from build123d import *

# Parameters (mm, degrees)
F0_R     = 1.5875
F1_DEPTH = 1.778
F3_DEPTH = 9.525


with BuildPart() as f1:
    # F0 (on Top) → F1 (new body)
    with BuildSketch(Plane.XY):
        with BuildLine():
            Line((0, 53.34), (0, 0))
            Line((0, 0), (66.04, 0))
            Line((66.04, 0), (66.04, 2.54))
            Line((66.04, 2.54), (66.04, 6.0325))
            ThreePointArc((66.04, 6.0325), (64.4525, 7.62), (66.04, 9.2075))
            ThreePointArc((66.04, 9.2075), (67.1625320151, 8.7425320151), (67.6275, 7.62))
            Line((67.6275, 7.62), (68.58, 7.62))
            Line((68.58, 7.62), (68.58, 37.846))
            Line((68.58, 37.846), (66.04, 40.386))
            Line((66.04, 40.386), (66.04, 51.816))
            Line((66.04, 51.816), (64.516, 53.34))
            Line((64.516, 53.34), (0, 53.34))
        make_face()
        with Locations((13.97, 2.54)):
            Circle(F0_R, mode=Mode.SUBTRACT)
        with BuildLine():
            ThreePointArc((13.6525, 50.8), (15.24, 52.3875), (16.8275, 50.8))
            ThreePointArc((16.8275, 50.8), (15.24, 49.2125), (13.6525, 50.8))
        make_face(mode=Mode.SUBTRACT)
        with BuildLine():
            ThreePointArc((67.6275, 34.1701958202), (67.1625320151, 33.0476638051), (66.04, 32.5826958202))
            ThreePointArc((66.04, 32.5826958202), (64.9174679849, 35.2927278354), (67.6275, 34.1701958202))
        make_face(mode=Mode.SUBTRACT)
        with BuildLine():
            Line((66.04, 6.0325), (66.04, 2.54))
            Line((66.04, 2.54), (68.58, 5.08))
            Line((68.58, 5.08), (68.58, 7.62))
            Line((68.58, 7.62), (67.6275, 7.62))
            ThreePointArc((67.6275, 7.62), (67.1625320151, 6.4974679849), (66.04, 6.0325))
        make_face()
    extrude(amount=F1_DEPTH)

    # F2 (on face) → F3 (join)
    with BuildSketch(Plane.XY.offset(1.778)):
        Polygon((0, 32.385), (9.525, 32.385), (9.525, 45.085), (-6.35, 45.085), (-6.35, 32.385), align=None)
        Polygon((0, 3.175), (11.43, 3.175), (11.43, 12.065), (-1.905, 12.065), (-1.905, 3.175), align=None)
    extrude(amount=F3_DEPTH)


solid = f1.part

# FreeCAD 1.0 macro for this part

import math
import FreeCAD as App
import Part
import Sketcher
Q = App.Units.Quantity

doc = App.newDocument("Part")
body = doc.addObject("PartDesign::Body", "Body")

# Sketch on XY plane
sketch1 = doc.addObject("Sketcher::SketchObject", "Sketch")
body.addObject(sketch1)
sketch1.AttachmentSupport = (doc.XY_Plane, [""])
sketch1.MapMode = "FlatFace"
sketch1.addGeometry([
    Part.LineSegment(App.Vector(0, 53.3, 0), App.Vector(0, 0, 0)),  # 0
    Part.LineSegment(App.Vector(0, 0, 0), App.Vector(66, 0, 0)),  # 1
    Part.LineSegment(App.Vector(66, 0, 0), App.Vector(66, 2.5, 0)),  # 2
    Part.LineSegment(App.Vector(66, 2.5, 0), App.Vector(68.6, 5.1, 0)),  # 3
    Part.LineSegment(App.Vector(68.6, 5.1, 0), App.Vector(68.6, 37.8, 0)),  # 4
    Part.LineSegment(App.Vector(68.6, 37.8, 0), App.Vector(66, 40.4, 0)),  # 5
    Part.LineSegment(App.Vector(66, 40.4, 0), App.Vector(66, 51.8, 0)),  # 6
    Part.LineSegment(App.Vector(66, 51.8, 0), App.Vector(64.5, 53.3, 0)),  # 7
    Part.LineSegment(App.Vector(64.5, 53.3, 0), App.Vector(0, 53.3, 0)),  # 8
    Part.ArcOfCircle(Part.Circle(App.Vector(66, 7.6, 0), App.Vector(0, 0, 1), 1.6), math.radians(90), math.radians(270)),  # 9
    Part.ArcOfCircle(Part.Circle(App.Vector(66, 7.6, 0), App.Vector(0, 0, 1), 1.6), math.radians(0), math.radians(90)),  # 10
    Part.ArcOfCircle(Part.Circle(App.Vector(66, 7.6, 0), App.Vector(0, 0, 1), 1.6), math.radians(-90), math.radians(0)),  # 11
    Part.Circle(App.Vector(14, 2.5, 0), App.Vector(0, 0, 1), 1.6),  # 12
    Part.Circle(App.Vector(15.2, 50.8, 0), App.Vector(0, 0, 1), 1.6),  # 13
    Part.ArcOfCircle(Part.Circle(App.Vector(66, 34.2, 0), App.Vector(0, 0, 1), 1.6), math.radians(0), math.radians(270)),  # 14
    Part.ArcOfCircle(Part.Circle(App.Vector(66, 34.2, 0), App.Vector(0, 0, 1), 1.6), math.radians(-90), math.radians(0)),  # 15
], False)
sketch1.addConstraint([
    Sketcher.Constraint("Coincident", 0, 2, 1, 1),
    Sketcher.Constraint("Coincident", 1, 2, 2, 1),
    Sketcher.Constraint("Coincident", 2, 2, 3, 1),
    Sketcher.Constraint("Coincident", 3, 2, 4, 1),
    Sketcher.Constraint("Coincident", 4, 2, 5, 1),
    Sketcher.Constraint("Coincident", 5, 2, 6, 1),
    Sketcher.Constraint("Coincident", 6, 2, 7, 1),
    Sketcher.Constraint("Coincident", 7, 2, 8, 1),
    Sketcher.Constraint("Coincident", 8, 2, 0, 1),
    Sketcher.Constraint("Tangent", 9, 1, 10, 2),
    Sketcher.Constraint("Tangent", 10, 1, 11, 2),
    Sketcher.Constraint("Tangent", 11, 1, 9, 2),
    Sketcher.Constraint("Tangent", 14, 1, 15, 2),
    Sketcher.Constraint("Coincident", 15, 1, 14, 2),
    Sketcher.Constraint("Vertical", 0),
    Sketcher.Constraint("Horizontal", 1),
    Sketcher.Constraint("Vertical", 2),
    Sketcher.Constraint("Vertical", 4),
    Sketcher.Constraint("Vertical", 6),
    Sketcher.Constraint("Horizontal", 8),
    Sketcher.Constraint("Coincident", 0, 2, -1, 1),
    Sketcher.Constraint("Equal", 11, 12),
    Sketcher.Constraint("Equal", 12, 13),
    Sketcher.Constraint("Equal", 13, 14),
    Sketcher.Constraint("Perpendicular", 3, 5),
    Sketcher.Constraint("Parallel", 5, 7),
    Sketcher.Constraint("Horizontal", 12, 3, 2, 2),
    Sketcher.Constraint("Horizontal", 11, 3, 10, 1),
    Sketcher.Constraint("Horizontal", 15, 3, 14, 1),
    Sketcher.Constraint("Vertical", 11, 3, 14, 3),
    Sketcher.Constraint("Vertical", 15, 3, 1, 2),
    Sketcher.Constraint("Vertical", 2, 2, 5, 2),
    Sketcher.Constraint("Vertical", 6, 2, 9, 1),
    Sketcher.Constraint("Vertical", 9, 1, 11, 1),
    Sketcher.Constraint("Vertical", 11, 1, 15, 1),
    Sketcher.Constraint("Equal", 3, 5),
    Sketcher.Constraint("Diameter", 12, Q("0.125 in")),
    Sketcher.Constraint("DistanceX", 1, 1, 1, 2, Q("2.6 in")),
    Sketcher.Constraint("DistanceY", 0, 2, 0, 1, Q("2.1 in")),
    Sketcher.Constraint("DistanceY", 2, 1, 2, 2, Q("0.1 in")),
    Sketcher.Constraint("DistanceY", -1, 1, 13, 3, Q("2 in")),
    Sketcher.Constraint("DistanceX", 13, 3, 9, 3, Q("2 in")),
    Sketcher.Constraint("DistanceX", 8, 2, 8, 1, Q("2.54 in")),
    Sketcher.Constraint("DistanceY", 4, 1, 4, 2, Q("1.29 in")),
    Sketcher.Constraint("DistanceY", 6, 1, 6, 2, Q("0.45 in")),
    Sketcher.Constraint("DistanceY", -1, 1, 9, 3, Q("0.3 in")),
    Sketcher.Constraint("DistanceX", -1, 1, 12, 3, Q("0.55 in")),
    Sketcher.Constraint("DistanceY", -1, 1, 14, 3, 34.170196),
])
pad1 = doc.addObject("PartDesign::Pad", "Pad")
body.addObject(pad1)
pad1.Profile = sketch1
pad1.Length = Q("0.07 in")

# Sketch on XY plane
sketch2 = doc.addObject("Sketcher::SketchObject", "Sketch001")
body.addObject(sketch2)
sketch2.AttachmentSupport = (doc.XY_Plane, [""])
sketch2.MapMode = "FlatFace"
sketch2.AttachmentOffset = App.Placement(App.Vector(0, 0, 0.07 * 25.4), App.Rotation())
sketch2.addGeometry([
    Part.LineSegment(App.Vector(10, 32, 0), App.Vector(10, 45, 0)),  # 0
    Part.LineSegment(App.Vector(10, 45, 0), App.Vector(-6, 45, 0)),  # 1
    Part.LineSegment(App.Vector(-6, 45, 0), App.Vector(-6, 32, 0)),  # 2
    Part.LineSegment(App.Vector(-6, 32, 0), App.Vector(10, 32, 0)),  # 3
    Part.LineSegment(App.Vector(11, 3, 0), App.Vector(11, 12, 0)),  # 4
    Part.LineSegment(App.Vector(11, 12, 0), App.Vector(-2, 12, 0)),  # 5
    Part.LineSegment(App.Vector(-2, 12, 0), App.Vector(-2, 3, 0)),  # 6
    Part.LineSegment(App.Vector(-2, 3, 0), App.Vector(11, 3, 0)),  # 7
], False)
sketch2.addConstraint([
    Sketcher.Constraint("Coincident", 0, 2, 1, 1),
    Sketcher.Constraint("Coincident", 1, 2, 2, 1),
    Sketcher.Constraint("Coincident", 2, 2, 3, 1),
    Sketcher.Constraint("Coincident", 3, 2, 0, 1),
    Sketcher.Constraint("Coincident", 4, 2, 5, 1),
    Sketcher.Constraint("Coincident", 5, 2, 6, 1),
    Sketcher.Constraint("Coincident", 6, 2, 7, 1),
    Sketcher.Constraint("Coincident", 7, 2, 4, 1),
    Sketcher.Constraint("Vertical", 0),
    Sketcher.Constraint("Horizontal", 1),
    Sketcher.Constraint("Vertical", 2),
    Sketcher.Constraint("Horizontal", 3),
    Sketcher.Constraint("Vertical", 4),
    Sketcher.Constraint("Horizontal", 5),
    Sketcher.Constraint("Vertical", 6),
    Sketcher.Constraint("Horizontal", 7),
    Sketcher.Constraint("DistanceY", 0, 1, 0, 2, Q("0.5 in")),
    Sketcher.Constraint("DistanceY", 4, 1, 4, 2, Q("0.35 in")),
    Sketcher.Constraint("DistanceY", 4, 2, 3, 2, Q("0.8 in")),
    Sketcher.Constraint("DistanceX", 2, 2, 4, 2, Q("0.7 in")),
    Sketcher.Constraint("DistanceX", 1, 2, 1, 1, Q("0.625 in")),
    Sketcher.Constraint("DistanceX", 5, 2, 5, 1, Q("0.525 in")),
    Sketcher.Constraint("DistanceX", 1, 2, -1, 1, Q("0.25 in")),
    Sketcher.Constraint("DistanceY", -1, 1, 0, 2, Q("1.775 in")),
])
pad2 = doc.addObject("PartDesign::Pad", "Pad001")
body.addObject(pad2)
pad2.Profile = sketch2
pad2.Length = Q("0.375 in")

doc.recompute()
